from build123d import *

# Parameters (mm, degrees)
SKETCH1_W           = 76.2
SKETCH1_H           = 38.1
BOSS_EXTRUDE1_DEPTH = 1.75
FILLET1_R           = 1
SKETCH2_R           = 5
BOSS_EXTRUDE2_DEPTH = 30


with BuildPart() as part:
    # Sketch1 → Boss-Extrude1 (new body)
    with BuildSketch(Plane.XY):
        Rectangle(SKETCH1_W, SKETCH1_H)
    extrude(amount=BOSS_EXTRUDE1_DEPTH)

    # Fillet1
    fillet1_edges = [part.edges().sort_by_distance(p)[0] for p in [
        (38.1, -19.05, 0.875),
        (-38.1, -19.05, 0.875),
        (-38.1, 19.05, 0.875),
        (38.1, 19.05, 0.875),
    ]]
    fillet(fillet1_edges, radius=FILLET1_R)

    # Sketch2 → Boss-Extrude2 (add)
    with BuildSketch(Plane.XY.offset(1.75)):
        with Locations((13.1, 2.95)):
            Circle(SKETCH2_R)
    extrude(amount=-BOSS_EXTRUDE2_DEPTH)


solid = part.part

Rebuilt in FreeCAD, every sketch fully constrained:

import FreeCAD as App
import Part
import Sketcher
from FreeCAD import Vector
Q = App.Units.Quantity


def edges_at(feature, points):
    """Names of the edges that pass closest to the given points."""
    edges = feature.Shape.Edges
    near = lambda p: min(range(len(edges)), key=lambda i: edges[i].distToShape(Part.Vertex(*p))[0])
    return sorted({f"Edge{near(p) + 1}" for p in points})


def add_polygon(sketch, points):
    """Adds a closed chain of lines whose ends are joined by coincident constraints."""
    first, n = sketch.GeometryCount, len(points)
    for a, b in zip(points, points[1:] + points[:1]):
        sketch.addGeometry(Part.LineSegment(App.Vector(*a, 0), App.Vector(*b, 0)), False)
    for i in range(n):
        sketch.addConstraint(Sketcher.Constraint("Coincident", first + i, 2, first + (i + 1) % n, 1))

doc = App.newDocument("Part")
params = doc.addObject("Spreadsheet::Sheet", "Params")
for row, (alias, value) in enumerate([
    ("sketch1_width", "76.2 mm"),
    ("sketch1_height", "38.1 mm"),
    ("pad1_length", "1.75 mm"),
    ("fillet_radius", "1 mm"),
    ("sketch2_diameter", "10 mm"),
    ("pad2_length", "30 mm"),
], start=1):
    params.set(f"A{row}", alias)
    params.set(f"B{row}", "=" + value)
    params.setAlias(f"B{row}", alias)

body = doc.addObject("PartDesign::Body", "Body")

# Sketch on XY plane
sketch1 = body.newObject("Sketcher::SketchObject", "Sketch")
sketch1.AttachmentSupport = (doc.getObject("XY_Plane"), [""])
sketch1.MapMode = "FlatFace"
add_polygon(sketch1, [(-38, 19), (-38, -19), (38, -19), (38, 19)])  # lines 0-3
sketch1.addConstraint([
    Sketcher.Constraint("Vertical", 0),
    Sketcher.Constraint("Horizontal", 1),
    Sketcher.Constraint("Vertical", 2),
    Sketcher.Constraint("Horizontal", 3),
    Sketcher.Constraint("Symmetric", 0, 2, 2, 2, -1, 1),
    Sketcher.Constraint("DistanceX", 1, 1, 1, 2, Q("76.2 mm")),
    Sketcher.Constraint("DistanceY", 0, 2, 0, 1, Q("38.1 mm")),
])
sketch1.setExpression("Constraints[9]", "Params.sketch1_width")
sketch1.setExpression("Constraints[10]", "Params.sketch1_height")
pad1 = body.newObject("PartDesign::Pad", "Pad")
pad1.Profile = sketch1
pad1.setExpression("Length", "Params.pad1_length")
doc.recompute()

fillet = body.newObject("PartDesign::Fillet", "Fillet")
fillet.Base = (pad1, edges_at(pad1, [
    (38.1, -19.05, 0.875),
    (-38.1, -19.05, 0.875),
    (-38.1, 19.05, 0.875),
    (38.1, 19.05, 0.875),
]))
fillet.setExpression("Radius", "Params.fillet_radius")

# Sketch on XY plane
sketch2 = body.newObject("Sketcher::SketchObject", "Sketch001")
sketch2.AttachmentSupport = (doc.getObject("XY_Plane"), [""])
sketch2.MapMode = "FlatFace"
sketch2.AttachmentOffset = App.Placement(Vector(0, 0, 1.75), App.Rotation())
sketch2.addGeometry(Part.Circle(Vector(13, 3, 0), Vector(0, 0, 1), 5), False)
sketch2.addConstraint([
    Sketcher.Constraint("Diameter", 0, Q("10 mm")),
    Sketcher.Constraint("DistanceX", -1, 1, 0, 3, Q("13.1 mm")),
    Sketcher.Constraint("DistanceY", -1, 1, 0, 3, Q("2.95 mm")),
])
sketch2.setExpression("Constraints[0]", "Params.sketch2_diameter")
pad2 = body.newObject("PartDesign::Pad", "Pad001")
pad2.Profile = sketch2
pad2.setExpression("Length", "Params.pad2_length")
pad2.Reversed = True

doc.recompute()
